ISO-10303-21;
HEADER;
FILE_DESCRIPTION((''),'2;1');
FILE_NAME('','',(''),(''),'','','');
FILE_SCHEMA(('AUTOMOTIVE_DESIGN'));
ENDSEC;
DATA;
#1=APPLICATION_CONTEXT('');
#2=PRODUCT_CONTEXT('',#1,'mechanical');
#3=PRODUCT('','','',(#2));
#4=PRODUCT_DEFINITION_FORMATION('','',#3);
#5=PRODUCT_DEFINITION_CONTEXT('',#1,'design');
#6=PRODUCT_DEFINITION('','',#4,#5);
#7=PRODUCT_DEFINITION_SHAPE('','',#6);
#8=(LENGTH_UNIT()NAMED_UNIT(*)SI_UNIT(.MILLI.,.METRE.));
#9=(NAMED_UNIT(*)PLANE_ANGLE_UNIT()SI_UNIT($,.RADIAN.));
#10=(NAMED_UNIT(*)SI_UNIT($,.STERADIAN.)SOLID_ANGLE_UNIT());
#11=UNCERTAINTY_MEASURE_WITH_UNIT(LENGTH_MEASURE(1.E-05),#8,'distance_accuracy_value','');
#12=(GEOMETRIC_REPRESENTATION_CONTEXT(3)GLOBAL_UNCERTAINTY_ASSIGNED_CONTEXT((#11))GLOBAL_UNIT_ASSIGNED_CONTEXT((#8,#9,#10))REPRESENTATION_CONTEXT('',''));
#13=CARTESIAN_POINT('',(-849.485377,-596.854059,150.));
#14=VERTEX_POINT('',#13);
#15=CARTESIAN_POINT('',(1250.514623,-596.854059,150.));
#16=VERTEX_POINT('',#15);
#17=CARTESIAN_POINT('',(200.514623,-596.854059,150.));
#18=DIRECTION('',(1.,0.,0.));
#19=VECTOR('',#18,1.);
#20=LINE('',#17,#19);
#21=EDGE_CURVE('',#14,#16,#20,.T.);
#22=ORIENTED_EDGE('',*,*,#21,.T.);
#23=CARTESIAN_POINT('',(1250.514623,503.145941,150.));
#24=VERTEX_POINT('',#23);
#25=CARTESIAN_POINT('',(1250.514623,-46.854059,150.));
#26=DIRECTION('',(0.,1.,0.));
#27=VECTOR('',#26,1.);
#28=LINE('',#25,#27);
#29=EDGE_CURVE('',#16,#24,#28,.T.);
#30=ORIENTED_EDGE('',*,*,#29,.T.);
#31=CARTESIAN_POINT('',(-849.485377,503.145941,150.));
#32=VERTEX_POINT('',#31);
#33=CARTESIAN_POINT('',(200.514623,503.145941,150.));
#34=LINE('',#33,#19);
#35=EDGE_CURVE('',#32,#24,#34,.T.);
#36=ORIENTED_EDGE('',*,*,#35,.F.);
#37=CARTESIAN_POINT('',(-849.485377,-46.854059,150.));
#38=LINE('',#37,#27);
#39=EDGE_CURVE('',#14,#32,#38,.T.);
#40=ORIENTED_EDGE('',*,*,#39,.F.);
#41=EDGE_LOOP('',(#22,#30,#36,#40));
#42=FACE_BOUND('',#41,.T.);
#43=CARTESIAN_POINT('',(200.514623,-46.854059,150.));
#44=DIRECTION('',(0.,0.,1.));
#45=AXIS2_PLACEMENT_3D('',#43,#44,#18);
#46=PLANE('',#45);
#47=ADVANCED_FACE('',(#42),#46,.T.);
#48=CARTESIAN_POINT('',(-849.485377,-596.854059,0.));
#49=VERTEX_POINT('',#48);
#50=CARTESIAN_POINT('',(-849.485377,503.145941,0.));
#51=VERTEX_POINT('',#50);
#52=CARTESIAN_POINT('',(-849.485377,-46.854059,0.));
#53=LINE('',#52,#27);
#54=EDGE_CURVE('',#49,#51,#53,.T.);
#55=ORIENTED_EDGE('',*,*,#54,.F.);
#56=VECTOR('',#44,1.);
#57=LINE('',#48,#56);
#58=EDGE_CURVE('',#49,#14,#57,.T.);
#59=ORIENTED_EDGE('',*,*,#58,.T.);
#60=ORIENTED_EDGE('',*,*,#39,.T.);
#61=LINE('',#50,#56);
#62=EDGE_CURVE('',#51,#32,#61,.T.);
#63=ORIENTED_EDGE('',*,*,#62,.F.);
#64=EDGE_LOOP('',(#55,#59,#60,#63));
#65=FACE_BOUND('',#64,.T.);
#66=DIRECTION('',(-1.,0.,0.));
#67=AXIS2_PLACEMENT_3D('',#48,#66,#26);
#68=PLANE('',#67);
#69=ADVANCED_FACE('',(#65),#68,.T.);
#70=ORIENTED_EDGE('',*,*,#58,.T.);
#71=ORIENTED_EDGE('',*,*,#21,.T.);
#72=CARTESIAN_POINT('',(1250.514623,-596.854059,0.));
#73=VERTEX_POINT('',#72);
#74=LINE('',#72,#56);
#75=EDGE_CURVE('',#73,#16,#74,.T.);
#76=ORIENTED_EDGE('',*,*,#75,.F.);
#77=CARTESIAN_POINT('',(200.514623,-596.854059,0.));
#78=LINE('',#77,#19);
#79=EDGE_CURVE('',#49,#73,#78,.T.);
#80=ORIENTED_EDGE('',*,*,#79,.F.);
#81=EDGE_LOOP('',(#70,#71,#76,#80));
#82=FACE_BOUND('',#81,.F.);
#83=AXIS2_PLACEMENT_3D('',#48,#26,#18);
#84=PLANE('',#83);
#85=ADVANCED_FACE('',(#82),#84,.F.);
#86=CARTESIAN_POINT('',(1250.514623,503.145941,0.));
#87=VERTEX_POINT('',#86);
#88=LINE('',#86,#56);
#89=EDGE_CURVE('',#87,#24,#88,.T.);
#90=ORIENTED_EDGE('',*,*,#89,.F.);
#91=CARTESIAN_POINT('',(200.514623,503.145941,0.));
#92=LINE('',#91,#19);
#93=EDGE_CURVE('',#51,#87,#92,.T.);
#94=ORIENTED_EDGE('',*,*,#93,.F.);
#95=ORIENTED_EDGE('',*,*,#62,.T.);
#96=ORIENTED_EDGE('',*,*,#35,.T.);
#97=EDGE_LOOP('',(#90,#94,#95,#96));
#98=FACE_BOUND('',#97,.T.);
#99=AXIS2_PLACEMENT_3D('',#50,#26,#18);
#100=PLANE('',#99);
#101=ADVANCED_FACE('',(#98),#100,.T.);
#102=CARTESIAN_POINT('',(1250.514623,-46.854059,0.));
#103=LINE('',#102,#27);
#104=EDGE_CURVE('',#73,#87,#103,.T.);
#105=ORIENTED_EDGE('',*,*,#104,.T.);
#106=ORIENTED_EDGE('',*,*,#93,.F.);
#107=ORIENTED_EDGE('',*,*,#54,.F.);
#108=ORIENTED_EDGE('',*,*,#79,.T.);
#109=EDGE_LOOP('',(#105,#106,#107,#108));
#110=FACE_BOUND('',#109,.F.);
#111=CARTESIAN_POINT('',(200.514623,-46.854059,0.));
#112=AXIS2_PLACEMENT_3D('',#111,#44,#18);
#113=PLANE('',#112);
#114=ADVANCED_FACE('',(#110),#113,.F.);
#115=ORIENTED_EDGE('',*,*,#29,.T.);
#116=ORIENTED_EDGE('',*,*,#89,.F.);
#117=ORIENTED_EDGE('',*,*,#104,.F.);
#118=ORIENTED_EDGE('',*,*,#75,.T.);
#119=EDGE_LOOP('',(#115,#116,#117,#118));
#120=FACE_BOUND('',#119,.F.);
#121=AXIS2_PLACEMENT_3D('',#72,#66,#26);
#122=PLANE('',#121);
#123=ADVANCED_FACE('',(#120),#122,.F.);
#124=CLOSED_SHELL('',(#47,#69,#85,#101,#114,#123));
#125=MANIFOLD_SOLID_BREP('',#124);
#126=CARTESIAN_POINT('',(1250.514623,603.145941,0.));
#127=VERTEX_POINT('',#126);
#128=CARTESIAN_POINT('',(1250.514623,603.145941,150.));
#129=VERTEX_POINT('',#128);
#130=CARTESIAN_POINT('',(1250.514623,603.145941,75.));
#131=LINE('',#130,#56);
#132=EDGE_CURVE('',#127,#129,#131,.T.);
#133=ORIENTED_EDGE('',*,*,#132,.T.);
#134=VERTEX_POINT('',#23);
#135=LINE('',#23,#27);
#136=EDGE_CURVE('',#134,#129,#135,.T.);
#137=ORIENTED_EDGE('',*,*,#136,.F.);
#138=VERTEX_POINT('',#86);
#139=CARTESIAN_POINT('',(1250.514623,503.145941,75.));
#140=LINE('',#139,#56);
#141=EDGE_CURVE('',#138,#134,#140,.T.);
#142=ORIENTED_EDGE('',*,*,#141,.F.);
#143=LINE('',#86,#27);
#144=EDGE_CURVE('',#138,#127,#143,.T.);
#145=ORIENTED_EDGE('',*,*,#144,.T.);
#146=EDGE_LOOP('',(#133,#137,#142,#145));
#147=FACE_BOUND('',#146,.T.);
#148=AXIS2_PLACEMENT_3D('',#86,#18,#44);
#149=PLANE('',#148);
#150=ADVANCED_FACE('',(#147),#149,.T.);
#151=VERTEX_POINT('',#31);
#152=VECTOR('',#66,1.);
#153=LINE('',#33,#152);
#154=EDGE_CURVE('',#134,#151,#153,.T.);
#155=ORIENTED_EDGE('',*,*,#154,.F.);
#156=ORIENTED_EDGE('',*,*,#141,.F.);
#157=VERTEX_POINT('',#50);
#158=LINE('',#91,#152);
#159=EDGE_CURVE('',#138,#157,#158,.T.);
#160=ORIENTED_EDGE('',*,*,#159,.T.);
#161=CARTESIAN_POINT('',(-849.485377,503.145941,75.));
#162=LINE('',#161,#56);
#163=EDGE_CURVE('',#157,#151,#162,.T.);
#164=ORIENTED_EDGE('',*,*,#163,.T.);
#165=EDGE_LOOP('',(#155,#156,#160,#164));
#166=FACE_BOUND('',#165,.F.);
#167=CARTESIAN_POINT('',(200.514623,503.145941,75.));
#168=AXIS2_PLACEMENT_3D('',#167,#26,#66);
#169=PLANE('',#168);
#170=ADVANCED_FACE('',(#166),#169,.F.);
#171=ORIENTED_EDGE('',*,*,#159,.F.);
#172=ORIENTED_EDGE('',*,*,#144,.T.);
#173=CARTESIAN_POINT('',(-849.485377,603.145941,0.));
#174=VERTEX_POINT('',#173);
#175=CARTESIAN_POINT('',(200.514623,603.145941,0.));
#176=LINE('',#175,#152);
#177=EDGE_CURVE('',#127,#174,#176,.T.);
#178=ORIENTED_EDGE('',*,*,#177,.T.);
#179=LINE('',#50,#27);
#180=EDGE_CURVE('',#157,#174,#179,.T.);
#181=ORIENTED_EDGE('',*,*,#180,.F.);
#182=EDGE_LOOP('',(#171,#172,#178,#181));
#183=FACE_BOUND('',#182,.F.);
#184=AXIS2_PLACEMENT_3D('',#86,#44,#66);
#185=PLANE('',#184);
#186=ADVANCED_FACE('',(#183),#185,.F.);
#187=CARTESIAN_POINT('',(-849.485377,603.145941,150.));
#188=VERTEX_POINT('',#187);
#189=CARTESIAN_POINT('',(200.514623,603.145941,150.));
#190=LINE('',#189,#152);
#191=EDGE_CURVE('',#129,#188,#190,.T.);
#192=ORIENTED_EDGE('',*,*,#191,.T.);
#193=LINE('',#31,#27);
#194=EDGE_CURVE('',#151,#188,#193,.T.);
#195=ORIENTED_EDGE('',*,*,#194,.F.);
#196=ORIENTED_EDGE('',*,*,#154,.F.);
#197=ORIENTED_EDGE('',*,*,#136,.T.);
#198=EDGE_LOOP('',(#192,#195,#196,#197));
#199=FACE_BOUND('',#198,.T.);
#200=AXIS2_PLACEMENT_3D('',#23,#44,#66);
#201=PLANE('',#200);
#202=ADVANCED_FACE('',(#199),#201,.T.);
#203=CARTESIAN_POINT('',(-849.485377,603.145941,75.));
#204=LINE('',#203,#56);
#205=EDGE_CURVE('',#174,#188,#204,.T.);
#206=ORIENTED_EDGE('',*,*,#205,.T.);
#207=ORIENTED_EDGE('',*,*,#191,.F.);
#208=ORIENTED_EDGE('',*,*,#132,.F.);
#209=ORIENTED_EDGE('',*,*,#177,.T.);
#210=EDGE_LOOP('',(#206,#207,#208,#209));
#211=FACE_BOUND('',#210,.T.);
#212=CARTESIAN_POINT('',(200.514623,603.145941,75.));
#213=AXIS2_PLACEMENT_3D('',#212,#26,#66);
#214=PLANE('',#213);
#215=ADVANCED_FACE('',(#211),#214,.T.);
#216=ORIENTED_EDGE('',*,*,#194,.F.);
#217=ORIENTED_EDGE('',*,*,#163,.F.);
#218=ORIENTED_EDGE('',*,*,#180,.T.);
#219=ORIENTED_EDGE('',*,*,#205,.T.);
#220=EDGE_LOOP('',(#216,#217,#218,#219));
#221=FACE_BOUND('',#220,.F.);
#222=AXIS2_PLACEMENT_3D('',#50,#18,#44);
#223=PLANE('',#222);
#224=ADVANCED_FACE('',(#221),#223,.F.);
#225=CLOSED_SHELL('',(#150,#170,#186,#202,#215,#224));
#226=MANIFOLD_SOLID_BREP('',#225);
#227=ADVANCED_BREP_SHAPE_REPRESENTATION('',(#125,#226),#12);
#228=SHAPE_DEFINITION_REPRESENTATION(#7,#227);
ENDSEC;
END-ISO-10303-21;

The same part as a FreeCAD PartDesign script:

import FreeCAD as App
import Part
import Sketcher
from FreeCAD import Vector
Q = App.Units.Quantity

doc = App.newDocument("Part")
body = doc.addObject("PartDesign::Body", "Body")

sketch1 = body.newObject("Sketcher::SketchObject", "Sketch")
sketch1.AttachmentSupport = (doc.getObject("XY_Plane"), [""])
sketch1.MapMode = "FlatFace"
sketch1.addGeometry(Part.LineSegment(Vector(-849, 503, 0), Vector(-849, -597, 0)), False)
sketch1.addGeometry(Part.LineSegment(Vector(-849, -597, 0), Vector(1251, -597, 0)), False)
sketch1.addGeometry(Part.LineSegment(Vector(1251, -597, 0), Vector(1251, 503, 0)), False)
sketch1.addGeometry(Part.LineSegment(Vector(1251, 503, 0), Vector(-849, 503, 0)), False)
sketch1.addConstraint(Sketcher.Constraint("Coincident", 0, 2, 1, 1))
sketch1.addConstraint(Sketcher.Constraint("Coincident", 1, 2, 2, 1))
sketch1.addConstraint(Sketcher.Constraint("Coincident", 2, 2, 3, 1))
sketch1.addConstraint(Sketcher.Constraint("Coincident", 3, 2, 0, 1))
sketch1.addConstraint(Sketcher.Constraint("Vertical", 0))
sketch1.addConstraint(Sketcher.Constraint("Horizontal", 1))
sketch1.addConstraint(Sketcher.Constraint("Vertical", 2))
sketch1.addConstraint(Sketcher.Constraint("Horizontal", 3))
sketch1.addConstraint(Sketcher.Constraint("DistanceX", 1, 1, 1, 2, Q("2100 mm")))
sketch1.addConstraint(Sketcher.Constraint("DistanceY", 0, 2, 0, 1, Q("1100 mm")))
sketch1.addConstraint(Sketcher.Constraint("DistanceY", 0, 2, -1, 1, Q("596.854059 mm")))
sketch1.addConstraint(Sketcher.Constraint("DistanceX", 0, 2, -1, 1, Q("849.485377 mm")))
pad1 = body.newObject("PartDesign::Pad", "Pad")
pad1.Profile = sketch1
pad1.Length = 150
body2 = doc.addObject("PartDesign::Body", "Body001")

sketch2 = body2.newObject("Sketcher::SketchObject", "Sketch001")
sketch2.AttachmentSupport = (doc.getObject("XZ_Plane001"), [""])
sketch2.MapMode = "FlatFace"
sketch2.AttachmentOffset = App.Placement(Vector(0, 0, -503.145941), App.Rotation())
sketch2.addGeometry(Part.LineSegment(Vector(1251, 150, 0), Vector(1251, 0, 0)), False)
sketch2.addGeometry(Part.LineSegment(Vector(1251, 0, 0), Vector(-849, 0, 0)), False)
sketch2.addGeometry(Part.LineSegment(Vector(-849, 0, 0), Vector(-849, 150, 0)), False)
sketch2.addGeometry(Part.LineSegment(Vector(-849, 150, 0), Vector(1251, 150, 0)), False)
sketch2.addConstraint(Sketcher.Constraint("Coincident", 0, 2, 1, 1))
sketch2.addConstraint(Sketcher.Constraint("Coincident", 1, 2, 2, 1))
sketch2.addConstraint(Sketcher.Constraint("Coincident", 2, 2, 3, 1))
sketch2.addConstraint(Sketcher.Constraint("Coincident", 3, 2, 0, 1))
sketch2.addConstraint(Sketcher.Constraint("Vertical", 0))
sketch2.addConstraint(Sketcher.Constraint("Horizontal", 1))
sketch2.addConstraint(Sketcher.Constraint("Vertical", 2))
sketch2.addConstraint(Sketcher.Constraint("Horizontal", 3))
sketch2.addConstraint(Sketcher.Constraint("PointOnObject", 0, 2, -1))
sketch2.addConstraint(Sketcher.Constraint("DistanceX", 1, 2, 1, 1, Q("2100 mm")))
sketch2.addConstraint(Sketcher.Constraint("DistanceY", 0, 2, 0, 1, Q("150 mm")))
sketch2.addConstraint(Sketcher.Constraint("DistanceX", -1, 1, 0, 2, Q("1250.514623 mm")))
pad2 = body2.newObject("PartDesign::Pad", "Pad001")
pad2.Profile = sketch2
pad2.Length = 100
pad2.Reversed = True

doc.recompute()
